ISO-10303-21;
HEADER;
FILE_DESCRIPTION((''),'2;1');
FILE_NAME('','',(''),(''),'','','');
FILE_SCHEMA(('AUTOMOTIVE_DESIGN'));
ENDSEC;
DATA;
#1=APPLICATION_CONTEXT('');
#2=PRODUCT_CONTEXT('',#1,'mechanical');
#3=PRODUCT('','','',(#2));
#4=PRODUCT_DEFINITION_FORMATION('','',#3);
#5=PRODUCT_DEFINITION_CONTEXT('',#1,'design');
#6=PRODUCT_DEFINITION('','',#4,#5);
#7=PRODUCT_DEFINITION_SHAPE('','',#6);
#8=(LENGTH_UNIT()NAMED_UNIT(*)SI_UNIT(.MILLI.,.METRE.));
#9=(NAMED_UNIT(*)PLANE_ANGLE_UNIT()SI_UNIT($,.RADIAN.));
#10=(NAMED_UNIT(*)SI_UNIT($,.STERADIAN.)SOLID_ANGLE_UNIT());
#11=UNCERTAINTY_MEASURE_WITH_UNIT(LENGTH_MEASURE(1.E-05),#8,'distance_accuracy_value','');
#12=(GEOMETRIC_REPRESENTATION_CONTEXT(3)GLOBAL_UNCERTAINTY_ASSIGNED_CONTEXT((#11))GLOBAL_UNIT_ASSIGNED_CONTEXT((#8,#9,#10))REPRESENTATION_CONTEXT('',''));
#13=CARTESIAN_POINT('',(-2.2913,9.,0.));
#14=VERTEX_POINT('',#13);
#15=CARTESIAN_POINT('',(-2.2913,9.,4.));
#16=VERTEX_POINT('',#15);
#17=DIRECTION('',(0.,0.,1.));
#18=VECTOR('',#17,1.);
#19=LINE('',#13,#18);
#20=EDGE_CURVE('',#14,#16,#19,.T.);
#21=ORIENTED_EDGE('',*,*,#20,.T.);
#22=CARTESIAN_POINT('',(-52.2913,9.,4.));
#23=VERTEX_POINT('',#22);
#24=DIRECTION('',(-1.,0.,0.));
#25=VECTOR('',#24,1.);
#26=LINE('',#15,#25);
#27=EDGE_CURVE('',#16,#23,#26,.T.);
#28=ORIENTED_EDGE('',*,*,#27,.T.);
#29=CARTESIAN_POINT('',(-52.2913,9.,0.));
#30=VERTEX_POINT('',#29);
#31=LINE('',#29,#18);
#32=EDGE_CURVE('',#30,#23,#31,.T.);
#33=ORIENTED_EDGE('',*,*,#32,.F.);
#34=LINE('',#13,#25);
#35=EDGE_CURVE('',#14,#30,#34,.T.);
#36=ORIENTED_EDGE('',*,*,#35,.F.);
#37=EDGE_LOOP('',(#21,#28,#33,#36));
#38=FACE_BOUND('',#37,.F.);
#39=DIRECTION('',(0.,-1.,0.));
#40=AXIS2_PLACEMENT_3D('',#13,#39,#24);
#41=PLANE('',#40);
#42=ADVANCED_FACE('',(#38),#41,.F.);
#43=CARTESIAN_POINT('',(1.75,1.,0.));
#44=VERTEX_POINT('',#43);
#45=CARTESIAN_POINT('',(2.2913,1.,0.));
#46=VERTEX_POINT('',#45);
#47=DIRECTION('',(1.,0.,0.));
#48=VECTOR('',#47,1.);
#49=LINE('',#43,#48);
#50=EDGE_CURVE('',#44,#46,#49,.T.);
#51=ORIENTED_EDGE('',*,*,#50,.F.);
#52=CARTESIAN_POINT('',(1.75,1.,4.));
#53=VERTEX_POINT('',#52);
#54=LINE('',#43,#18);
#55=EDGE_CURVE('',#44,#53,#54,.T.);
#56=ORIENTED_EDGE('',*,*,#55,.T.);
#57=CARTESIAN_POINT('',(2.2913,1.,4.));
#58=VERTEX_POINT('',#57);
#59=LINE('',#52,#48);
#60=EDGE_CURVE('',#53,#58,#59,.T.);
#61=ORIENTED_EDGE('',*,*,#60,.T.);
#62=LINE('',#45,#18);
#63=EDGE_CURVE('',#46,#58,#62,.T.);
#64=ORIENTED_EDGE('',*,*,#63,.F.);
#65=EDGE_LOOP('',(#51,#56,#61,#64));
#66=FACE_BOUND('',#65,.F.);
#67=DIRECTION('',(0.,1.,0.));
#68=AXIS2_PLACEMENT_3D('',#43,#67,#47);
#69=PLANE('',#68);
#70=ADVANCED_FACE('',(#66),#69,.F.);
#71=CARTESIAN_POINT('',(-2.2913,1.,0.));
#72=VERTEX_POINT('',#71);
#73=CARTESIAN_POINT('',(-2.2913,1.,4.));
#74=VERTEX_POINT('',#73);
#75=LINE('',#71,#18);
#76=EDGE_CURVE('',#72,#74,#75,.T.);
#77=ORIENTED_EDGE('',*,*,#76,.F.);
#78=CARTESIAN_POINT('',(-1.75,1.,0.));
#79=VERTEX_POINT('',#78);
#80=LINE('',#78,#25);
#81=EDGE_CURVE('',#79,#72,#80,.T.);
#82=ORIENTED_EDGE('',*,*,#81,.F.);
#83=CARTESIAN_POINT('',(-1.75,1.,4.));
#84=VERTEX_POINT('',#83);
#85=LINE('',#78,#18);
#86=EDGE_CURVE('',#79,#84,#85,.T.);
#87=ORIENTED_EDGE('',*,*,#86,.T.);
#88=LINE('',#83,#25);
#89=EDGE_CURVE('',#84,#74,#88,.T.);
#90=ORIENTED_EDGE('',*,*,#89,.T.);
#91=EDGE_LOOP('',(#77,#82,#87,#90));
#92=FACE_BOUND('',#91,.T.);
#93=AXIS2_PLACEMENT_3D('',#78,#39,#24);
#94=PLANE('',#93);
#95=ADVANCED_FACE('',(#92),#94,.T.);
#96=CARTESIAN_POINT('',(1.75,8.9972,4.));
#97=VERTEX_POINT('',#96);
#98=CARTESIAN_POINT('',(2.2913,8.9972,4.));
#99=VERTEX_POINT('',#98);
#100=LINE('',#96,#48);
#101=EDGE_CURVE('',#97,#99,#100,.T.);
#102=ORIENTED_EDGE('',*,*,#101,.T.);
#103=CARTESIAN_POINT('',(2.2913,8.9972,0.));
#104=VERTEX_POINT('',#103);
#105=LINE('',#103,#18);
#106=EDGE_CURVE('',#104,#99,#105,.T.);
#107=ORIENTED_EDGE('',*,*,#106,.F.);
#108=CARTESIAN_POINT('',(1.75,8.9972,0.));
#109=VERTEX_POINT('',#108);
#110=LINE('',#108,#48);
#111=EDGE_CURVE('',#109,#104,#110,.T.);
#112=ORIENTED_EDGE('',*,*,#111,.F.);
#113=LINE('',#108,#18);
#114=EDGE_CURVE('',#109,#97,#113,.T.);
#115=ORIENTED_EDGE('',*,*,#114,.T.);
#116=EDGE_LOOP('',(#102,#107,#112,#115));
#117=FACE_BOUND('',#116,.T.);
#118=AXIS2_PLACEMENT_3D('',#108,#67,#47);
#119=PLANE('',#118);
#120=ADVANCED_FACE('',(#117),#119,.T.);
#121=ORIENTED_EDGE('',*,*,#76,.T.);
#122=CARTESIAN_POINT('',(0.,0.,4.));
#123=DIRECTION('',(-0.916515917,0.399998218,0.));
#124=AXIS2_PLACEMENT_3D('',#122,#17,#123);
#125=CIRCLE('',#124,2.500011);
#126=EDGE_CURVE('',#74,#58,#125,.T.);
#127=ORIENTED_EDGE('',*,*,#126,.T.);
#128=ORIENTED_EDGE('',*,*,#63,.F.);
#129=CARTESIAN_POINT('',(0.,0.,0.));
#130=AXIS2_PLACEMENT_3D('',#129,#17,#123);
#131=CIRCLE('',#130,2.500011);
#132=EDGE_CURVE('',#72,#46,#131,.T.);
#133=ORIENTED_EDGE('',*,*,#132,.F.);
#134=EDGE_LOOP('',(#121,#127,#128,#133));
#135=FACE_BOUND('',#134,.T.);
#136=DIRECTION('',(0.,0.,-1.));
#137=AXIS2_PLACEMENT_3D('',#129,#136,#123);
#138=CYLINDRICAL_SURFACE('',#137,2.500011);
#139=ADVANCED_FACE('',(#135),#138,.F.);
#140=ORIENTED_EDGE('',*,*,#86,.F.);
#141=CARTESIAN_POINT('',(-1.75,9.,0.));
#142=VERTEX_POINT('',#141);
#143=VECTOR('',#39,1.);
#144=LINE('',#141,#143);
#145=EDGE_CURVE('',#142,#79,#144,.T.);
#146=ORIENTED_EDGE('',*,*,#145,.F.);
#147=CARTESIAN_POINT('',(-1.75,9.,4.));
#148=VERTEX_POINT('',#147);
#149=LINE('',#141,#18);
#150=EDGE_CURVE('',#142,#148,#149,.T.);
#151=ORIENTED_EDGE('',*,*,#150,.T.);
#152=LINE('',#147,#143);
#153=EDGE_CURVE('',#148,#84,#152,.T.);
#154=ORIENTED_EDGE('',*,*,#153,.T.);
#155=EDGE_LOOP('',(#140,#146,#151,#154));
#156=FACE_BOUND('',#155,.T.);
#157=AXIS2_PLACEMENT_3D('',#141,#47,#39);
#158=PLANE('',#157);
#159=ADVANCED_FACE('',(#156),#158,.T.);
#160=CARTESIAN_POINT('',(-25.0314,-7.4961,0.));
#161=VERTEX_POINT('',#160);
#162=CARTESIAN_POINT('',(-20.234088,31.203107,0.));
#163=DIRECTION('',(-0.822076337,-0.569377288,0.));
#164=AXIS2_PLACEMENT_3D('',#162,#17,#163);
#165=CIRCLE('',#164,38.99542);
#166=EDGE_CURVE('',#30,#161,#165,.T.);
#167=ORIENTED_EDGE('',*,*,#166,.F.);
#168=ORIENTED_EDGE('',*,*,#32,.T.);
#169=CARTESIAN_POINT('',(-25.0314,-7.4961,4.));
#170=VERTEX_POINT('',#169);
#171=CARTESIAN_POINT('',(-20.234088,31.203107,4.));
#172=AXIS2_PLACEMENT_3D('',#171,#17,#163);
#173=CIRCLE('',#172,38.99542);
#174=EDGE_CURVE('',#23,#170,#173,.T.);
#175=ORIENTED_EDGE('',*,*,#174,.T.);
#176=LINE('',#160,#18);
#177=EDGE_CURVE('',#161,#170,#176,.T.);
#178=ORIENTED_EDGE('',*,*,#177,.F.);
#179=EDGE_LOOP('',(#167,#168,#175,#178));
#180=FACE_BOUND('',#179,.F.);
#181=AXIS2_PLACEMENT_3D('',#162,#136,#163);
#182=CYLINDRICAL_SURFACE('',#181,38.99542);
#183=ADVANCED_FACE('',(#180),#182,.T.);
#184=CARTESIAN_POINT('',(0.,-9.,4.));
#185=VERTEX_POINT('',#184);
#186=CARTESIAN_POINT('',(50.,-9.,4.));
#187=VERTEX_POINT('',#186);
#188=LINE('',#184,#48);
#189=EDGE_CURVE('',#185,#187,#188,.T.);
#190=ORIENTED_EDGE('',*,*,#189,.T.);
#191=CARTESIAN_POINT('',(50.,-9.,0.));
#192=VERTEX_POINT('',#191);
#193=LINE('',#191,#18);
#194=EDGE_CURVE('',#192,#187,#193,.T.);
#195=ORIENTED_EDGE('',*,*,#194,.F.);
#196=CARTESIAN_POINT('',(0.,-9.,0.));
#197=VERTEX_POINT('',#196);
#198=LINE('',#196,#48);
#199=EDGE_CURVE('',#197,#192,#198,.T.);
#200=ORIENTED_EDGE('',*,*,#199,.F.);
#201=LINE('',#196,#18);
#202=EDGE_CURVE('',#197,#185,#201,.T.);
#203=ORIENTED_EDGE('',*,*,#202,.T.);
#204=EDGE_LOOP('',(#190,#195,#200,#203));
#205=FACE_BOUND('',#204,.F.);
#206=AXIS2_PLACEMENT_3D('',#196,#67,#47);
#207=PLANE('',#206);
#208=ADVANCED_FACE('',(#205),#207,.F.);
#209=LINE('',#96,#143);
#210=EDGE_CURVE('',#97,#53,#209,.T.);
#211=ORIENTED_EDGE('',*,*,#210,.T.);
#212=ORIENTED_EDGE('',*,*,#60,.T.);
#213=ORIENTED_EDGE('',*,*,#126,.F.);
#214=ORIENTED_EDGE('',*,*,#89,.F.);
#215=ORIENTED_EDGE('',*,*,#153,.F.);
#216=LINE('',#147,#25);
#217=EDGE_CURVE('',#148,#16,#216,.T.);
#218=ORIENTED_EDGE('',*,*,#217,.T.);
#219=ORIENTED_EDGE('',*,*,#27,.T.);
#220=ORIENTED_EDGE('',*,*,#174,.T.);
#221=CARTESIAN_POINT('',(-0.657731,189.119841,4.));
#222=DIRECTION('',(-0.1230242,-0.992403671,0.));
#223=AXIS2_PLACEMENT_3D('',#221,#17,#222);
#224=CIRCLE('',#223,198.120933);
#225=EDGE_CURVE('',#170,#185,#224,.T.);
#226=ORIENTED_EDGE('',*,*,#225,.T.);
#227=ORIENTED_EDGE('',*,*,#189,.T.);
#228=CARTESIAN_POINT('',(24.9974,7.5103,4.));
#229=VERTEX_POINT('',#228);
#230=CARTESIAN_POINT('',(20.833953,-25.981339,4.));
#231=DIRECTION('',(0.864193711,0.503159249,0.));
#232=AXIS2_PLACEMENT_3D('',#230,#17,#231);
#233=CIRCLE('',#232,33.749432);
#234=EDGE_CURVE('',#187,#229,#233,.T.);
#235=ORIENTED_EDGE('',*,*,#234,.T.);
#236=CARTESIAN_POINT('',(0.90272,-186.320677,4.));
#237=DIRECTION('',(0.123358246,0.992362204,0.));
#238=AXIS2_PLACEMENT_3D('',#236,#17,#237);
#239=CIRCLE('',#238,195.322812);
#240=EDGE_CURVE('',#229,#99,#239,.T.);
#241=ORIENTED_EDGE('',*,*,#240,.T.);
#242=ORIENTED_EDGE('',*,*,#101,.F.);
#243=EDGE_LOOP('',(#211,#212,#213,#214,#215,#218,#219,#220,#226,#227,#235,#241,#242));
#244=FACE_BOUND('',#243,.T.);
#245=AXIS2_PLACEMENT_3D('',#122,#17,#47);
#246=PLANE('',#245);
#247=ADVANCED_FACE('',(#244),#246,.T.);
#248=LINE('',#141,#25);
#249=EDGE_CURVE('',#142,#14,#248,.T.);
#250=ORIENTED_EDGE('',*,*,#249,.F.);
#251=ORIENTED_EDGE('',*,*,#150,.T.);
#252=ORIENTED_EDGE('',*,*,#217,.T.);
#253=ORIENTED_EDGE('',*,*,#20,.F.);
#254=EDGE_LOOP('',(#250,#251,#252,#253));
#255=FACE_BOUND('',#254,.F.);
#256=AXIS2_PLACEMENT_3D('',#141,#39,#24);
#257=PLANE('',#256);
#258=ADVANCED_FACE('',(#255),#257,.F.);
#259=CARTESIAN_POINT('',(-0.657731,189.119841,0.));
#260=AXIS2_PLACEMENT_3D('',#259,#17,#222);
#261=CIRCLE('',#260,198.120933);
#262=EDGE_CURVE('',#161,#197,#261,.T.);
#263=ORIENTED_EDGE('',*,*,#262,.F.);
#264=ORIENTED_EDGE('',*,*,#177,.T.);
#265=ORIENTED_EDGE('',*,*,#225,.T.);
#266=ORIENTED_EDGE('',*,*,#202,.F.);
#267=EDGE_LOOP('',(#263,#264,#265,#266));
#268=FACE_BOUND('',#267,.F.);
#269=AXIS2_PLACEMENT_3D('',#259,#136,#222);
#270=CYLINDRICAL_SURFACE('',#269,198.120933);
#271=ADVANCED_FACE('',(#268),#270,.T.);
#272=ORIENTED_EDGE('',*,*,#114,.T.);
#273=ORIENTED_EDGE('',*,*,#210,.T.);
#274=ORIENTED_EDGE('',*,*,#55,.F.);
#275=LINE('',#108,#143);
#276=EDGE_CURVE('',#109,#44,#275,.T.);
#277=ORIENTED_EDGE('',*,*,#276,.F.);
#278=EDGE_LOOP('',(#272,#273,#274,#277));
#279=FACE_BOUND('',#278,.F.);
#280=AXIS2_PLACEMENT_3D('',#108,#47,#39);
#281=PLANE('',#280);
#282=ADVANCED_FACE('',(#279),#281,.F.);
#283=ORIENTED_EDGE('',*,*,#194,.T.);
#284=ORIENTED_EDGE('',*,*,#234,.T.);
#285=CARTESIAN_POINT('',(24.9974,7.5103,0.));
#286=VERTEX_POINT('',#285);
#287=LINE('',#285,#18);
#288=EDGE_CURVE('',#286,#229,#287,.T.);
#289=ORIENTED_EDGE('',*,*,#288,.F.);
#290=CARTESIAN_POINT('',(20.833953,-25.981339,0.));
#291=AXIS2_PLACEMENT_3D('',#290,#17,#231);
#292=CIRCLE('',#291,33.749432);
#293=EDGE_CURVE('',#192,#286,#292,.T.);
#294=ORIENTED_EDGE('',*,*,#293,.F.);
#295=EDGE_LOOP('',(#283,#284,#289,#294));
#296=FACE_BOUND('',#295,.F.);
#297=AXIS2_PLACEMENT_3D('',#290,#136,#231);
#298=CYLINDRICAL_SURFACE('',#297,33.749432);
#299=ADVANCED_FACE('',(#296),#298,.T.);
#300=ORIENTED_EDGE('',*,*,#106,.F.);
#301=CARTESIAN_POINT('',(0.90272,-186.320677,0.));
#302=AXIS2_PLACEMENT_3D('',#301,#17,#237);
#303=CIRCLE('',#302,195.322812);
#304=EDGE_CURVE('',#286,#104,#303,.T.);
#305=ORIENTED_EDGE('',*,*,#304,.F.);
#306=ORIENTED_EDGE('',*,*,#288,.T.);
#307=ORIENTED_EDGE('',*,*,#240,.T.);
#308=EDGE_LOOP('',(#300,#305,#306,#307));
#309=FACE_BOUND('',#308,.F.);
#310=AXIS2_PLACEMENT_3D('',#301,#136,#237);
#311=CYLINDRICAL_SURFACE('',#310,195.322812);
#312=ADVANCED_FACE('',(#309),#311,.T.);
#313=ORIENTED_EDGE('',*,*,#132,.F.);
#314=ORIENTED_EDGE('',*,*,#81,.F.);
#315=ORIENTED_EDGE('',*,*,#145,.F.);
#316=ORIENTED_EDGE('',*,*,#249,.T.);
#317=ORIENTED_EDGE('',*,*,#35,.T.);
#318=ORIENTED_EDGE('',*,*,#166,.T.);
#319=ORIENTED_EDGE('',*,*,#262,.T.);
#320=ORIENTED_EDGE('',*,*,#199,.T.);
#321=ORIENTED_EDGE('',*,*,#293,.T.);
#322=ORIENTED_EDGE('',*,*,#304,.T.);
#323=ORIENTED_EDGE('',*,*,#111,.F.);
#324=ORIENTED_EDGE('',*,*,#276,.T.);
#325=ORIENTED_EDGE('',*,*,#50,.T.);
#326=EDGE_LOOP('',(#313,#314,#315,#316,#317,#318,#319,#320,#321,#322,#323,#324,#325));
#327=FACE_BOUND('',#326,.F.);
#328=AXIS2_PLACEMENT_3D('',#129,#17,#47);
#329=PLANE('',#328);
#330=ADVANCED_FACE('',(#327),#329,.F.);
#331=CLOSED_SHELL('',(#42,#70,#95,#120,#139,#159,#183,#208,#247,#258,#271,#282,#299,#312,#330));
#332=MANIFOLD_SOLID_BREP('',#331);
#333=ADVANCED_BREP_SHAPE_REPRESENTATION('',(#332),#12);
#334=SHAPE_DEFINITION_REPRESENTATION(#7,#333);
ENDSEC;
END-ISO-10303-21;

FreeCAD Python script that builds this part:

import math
import FreeCAD as App
import Part
import Sketcher
from FreeCAD import Vector
Q = App.Units.Quantity

doc = App.newDocument("Part")
body = doc.addObject("PartDesign::Body", "Body")

# Sketch on XY plane
sketch1 = body.newObject("Sketcher::SketchObject", "Sketch")
sketch1.AttachmentSupport = (doc.getObject("XY_Plane"), [""])
sketch1.MapMode = "FlatFace"
sketch1.addGeometry(Part.ArcOfCircle(Part.Circle(Vector(0, 0, 0), Vector(0, 0, 1), 2.5), math.radians(156), math.radians(384)), False)
sketch1.addGeometry(Part.LineSegment(Vector(-2.3, 1, 0), Vector(-1.8, 1, 0)), False)
sketch1.addGeometry(Part.LineSegment(Vector(-1.8, 1, 0), Vector(-1.8, 9, 0)), False)
sketch1.addGeometry(Part.LineSegment(Vector(-1.8, 9, 0), Vector(-52.3, 9, 0)), False)
sketch1.addGeometry(Part.ArcOfCircle(Part.Circle(Vector(-20.2, 31.2, 0), Vector(0, 0, 1), 39), math.radians(-145), math.radians(-97)), False)
sketch1.addGeometry(Part.ArcOfCircle(Part.Circle(Vector(-0.7, 189.1, 0), Vector(0, 0, 1), 198.1), math.radians(-97.07), math.radians(-89.81)), False)
sketch1.addGeometry(Part.LineSegment(Vector(0, -9, 0), Vector(50, -9, 0)), False)
sketch1.addGeometry(Part.ArcOfCircle(Part.Circle(Vector(20.8, -26, 0), Vector(0, 0, 1), 33.7), math.radians(30), math.radians(83)), False)
sketch1.addGeometry(Part.ArcOfCircle(Part.Circle(Vector(0.9, -186.3, 0), Vector(0, 0, 1), 195.3), math.radians(82.91), math.radians(89.59)), False)
sketch1.addGeometry(Part.LineSegment(Vector(2.3, 9, 0), Vector(1.8, 9, 0)), False)
sketch1.addGeometry(Part.LineSegment(Vector(1.8, 9, 0), Vector(1.8, 1, 0)), False)
sketch1.addGeometry(Part.LineSegment(Vector(1.8, 1, 0), Vector(2.3, 1, 0)), False)
sketch1.addConstraint(Sketcher.Constraint("Coincident", 0, 1, 1, 1))
sketch1.addConstraint(Sketcher.Constraint("Coincident", 1, 2, 2, 1))
sketch1.addConstraint(Sketcher.Constraint("Coincident", 2, 2, 3, 1))
sketch1.addConstraint(Sketcher.Constraint("Coincident", 3, 2, 4, 1))
sketch1.addConstraint(Sketcher.Constraint("Tangent", 4, 2, 5, 1))
sketch1.addConstraint(Sketcher.Constraint("Coincident", 5, 2, 6, 1))
sketch1.addConstraint(Sketcher.Constraint("Coincident", 6, 2, 7, 1))
sketch1.addConstraint(Sketcher.Constraint("Tangent", 7, 2, 8, 1))
sketch1.addConstraint(Sketcher.Constraint("Coincident", 8, 2, 9, 1))
sketch1.addConstraint(Sketcher.Constraint("Coincident", 9, 2, 10, 1))
sketch1.addConstraint(Sketcher.Constraint("Coincident", 10, 2, 11, 1))
sketch1.addConstraint(Sketcher.Constraint("Coincident", 11, 2, 0, 2))
sketch1.addConstraint(Sketcher.Constraint("Horizontal", 1))
sketch1.addConstraint(Sketcher.Constraint("Vertical", 2))
sketch1.addConstraint(Sketcher.Constraint("Horizontal", 3))
sketch1.addConstraint(Sketcher.Constraint("Horizontal", 6))
sketch1.addConstraint(Sketcher.Constraint("Horizontal", 9))
sketch1.addConstraint(Sketcher.Constraint("Vertical", 10))
sketch1.addConstraint(Sketcher.Constraint("Horizontal", 11))
sketch1.addConstraint(Sketcher.Constraint("Coincident", 0, 3, -1, 1))
sketch1.addConstraint(Sketcher.Constraint("Symmetric", 1, 2, 10, 2, -2))
sketch1.addConstraint(Sketcher.Constraint("PointOnObject", 5, 2, -2))
sketch1.addConstraint(Sketcher.Constraint("Vertical", 8, 2, 11, 2))
sketch1.addConstraint(Sketcher.Constraint("Radius", 0, Q("2.5 mm")))
sketch1.addConstraint(Sketcher.Constraint("DistanceX", 6, 1, 6, 2, Q("50 mm")))
sketch1.addConstraint(Sketcher.Constraint("DistanceX", 3, 2, 0, 1, Q("50 mm")))
sketch1.addConstraint(Sketcher.Constraint("DistanceY", 2, 1, 2, 2, Q("8 mm")))
sketch1.addConstraint(Sketcher.Constraint("DistanceY", -1, 1, 0, 1, Q("1 mm")))
sketch1.addConstraint(Sketcher.Constraint("DistanceY", 5, 2, -1, 1, Q("9 mm")))
sketch1.addConstraint(Sketcher.Constraint("Radius", 5, Q("198.121 mm")))
sketch1.addConstraint(Sketcher.Constraint("Radius", 4, Q("38.9955 mm")))
sketch1.addConstraint(Sketcher.Constraint("Radius", 7, Q("33.7492 mm")))
sketch1.addConstraint(Sketcher.Constraint("Radius", 8, Q("195.3228 mm")))
sketch1.addConstraint(Sketcher.Constraint("DistanceX", 2, 2, 9, 2, Q("3.5 mm")))
sketch1.addConstraint(Sketcher.Constraint("DistanceX", 4, 2, 0, 1, Q("22.74 mm")))
sketch1.addConstraint(Sketcher.Constraint("DistanceY", 10, 2, 10, 1, Q("7.9972 mm")))
sketch1.addConstraint(Sketcher.Constraint("DistanceX", -1, 1, 7, 3, Q("20.834 mm")))
pad1 = body.newObject("PartDesign::Pad", "Pad")
pad1.Profile = sketch1
pad1.Length = 4

doc.recompute()
